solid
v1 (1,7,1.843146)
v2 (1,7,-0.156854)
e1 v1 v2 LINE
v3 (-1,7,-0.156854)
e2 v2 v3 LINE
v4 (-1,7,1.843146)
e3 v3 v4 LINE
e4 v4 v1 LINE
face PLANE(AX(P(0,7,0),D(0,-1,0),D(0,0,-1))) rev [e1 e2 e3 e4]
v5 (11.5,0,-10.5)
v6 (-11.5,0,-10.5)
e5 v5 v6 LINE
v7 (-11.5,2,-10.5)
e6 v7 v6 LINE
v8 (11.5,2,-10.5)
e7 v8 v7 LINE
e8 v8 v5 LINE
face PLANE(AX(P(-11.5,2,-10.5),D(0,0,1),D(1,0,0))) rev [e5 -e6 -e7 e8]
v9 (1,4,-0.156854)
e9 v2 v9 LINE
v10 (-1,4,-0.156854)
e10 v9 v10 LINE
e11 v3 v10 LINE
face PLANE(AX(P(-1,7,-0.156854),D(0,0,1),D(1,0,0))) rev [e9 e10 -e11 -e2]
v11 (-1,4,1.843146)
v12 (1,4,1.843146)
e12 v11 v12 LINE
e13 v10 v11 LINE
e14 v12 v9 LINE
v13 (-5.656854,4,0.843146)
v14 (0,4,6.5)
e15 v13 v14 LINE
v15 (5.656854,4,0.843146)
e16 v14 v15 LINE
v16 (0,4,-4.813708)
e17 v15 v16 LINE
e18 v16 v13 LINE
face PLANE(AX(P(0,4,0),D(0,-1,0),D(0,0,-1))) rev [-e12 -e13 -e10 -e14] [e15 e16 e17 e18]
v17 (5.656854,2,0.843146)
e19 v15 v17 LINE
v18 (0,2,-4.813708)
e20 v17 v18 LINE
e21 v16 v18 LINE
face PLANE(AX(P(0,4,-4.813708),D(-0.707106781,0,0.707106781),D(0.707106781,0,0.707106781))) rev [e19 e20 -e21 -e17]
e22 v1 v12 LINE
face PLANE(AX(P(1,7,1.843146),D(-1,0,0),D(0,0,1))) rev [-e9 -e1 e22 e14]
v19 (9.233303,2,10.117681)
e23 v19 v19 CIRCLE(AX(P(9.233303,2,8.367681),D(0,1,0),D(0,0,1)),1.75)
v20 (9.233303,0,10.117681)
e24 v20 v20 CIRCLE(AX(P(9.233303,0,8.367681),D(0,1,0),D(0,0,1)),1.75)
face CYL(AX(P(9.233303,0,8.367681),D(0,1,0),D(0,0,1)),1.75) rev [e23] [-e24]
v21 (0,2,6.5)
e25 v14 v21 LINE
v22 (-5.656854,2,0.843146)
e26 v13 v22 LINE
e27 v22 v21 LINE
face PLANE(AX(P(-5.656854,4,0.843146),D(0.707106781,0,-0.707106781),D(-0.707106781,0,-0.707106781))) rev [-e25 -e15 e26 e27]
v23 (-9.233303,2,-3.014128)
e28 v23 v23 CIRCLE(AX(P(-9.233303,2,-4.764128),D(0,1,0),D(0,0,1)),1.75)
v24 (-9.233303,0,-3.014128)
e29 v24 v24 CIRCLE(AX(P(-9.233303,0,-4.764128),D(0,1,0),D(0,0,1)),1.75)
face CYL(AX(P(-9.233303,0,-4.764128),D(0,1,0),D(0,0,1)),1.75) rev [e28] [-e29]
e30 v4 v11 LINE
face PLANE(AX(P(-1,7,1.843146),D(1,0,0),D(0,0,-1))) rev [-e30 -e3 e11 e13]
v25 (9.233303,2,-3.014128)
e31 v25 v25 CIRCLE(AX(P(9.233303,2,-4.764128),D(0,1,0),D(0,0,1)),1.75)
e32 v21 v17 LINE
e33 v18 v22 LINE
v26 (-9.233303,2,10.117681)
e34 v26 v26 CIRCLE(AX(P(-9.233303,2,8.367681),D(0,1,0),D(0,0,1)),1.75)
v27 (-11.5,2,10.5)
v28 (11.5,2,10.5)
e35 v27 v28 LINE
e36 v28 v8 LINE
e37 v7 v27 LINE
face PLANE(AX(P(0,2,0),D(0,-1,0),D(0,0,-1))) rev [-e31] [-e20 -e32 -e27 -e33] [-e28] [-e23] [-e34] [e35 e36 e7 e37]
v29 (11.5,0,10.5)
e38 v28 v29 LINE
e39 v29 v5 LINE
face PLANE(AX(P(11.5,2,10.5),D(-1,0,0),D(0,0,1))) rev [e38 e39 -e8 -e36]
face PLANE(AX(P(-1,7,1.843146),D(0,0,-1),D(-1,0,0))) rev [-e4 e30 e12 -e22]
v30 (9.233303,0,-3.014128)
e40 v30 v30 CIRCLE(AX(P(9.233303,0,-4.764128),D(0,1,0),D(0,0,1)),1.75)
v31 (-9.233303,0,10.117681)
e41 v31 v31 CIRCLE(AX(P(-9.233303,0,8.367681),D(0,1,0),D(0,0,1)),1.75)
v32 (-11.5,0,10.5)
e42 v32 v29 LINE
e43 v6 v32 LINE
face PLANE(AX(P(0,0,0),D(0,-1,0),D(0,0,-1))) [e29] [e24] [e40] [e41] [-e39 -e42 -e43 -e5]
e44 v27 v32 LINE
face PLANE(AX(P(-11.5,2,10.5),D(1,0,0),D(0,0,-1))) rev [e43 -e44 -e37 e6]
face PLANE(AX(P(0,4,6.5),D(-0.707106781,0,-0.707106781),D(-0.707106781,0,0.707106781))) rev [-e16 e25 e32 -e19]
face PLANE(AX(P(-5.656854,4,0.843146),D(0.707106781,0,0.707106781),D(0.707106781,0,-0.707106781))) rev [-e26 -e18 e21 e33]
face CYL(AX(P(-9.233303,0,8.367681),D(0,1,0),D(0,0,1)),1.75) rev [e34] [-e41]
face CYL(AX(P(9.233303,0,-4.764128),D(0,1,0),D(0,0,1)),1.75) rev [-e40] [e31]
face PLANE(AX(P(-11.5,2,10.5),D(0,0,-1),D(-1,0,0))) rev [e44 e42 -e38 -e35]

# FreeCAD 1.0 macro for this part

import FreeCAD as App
import Part
import Sketcher

V = App.Vector
Q = App.Units.Quantity


def add_polygon(sketch, points):
    """Adds a closed chain of lines whose ends are joined by coincident constraints."""
    first, n = sketch.GeometryCount, len(points)
    for a, b in zip(points, points[1:] + points[:1]):
        sketch.addGeometry(Part.LineSegment(App.Vector(*a, 0), App.Vector(*b, 0)), False)
    for i in range(n):
        sketch.addConstraint(Sketcher.Constraint("Coincident", first + i, 2, first + (i + 1) % n, 1))

doc = App.newDocument("Part")
params = doc.addObject("Spreadsheet::Sheet", "Params")
for row, (alias, value) in enumerate([
    ("sketch1_width", "23 mm"),
    ("sketch1_height", "21 mm"),
    ("pad1_length", "2 mm"),
    ("sketch2_diameter", "3.5 mm"),
    ("sketch3_length", "8 mm"),
    ("pad2_length", "2 mm"),
    ("sketch4_width", "2 mm"),
    ("pad3_length", "3 mm"),
], start=1):
    params.set(f"A{row}", alias)
    params.set(f"B{row}", "=" + value)
    params.setAlias(f"B{row}", alias)

body = doc.addObject("PartDesign::Body", "Body")

sketch1 = body.newObject("Sketcher::SketchObject", "Sketch")
sketch1.AttachmentSupport = (doc.getObject("XZ_Plane"), [""])
sketch1.MapMode = "FlatFace"
add_polygon(sketch1, [(-11.5, -10.5), (-11.5, 10.5), (11.5, 10.5), (11.5, -10.5)])
sketch1.addConstraint([
    Sketcher.Constraint("Vertical", 0),
    Sketcher.Constraint("Horizontal", 1),
    Sketcher.Constraint("Vertical", 2),
    Sketcher.Constraint("Horizontal", 3),
    Sketcher.Constraint("Symmetric", 0, 2, 2, 2, -1, 1),
    Sketcher.Constraint("DistanceX", 1, 1, 1, 2, Q("23 mm")),
    Sketcher.Constraint("DistanceY", 0, 1, 0, 2, Q("21 mm")),
])
sketch1.setExpression("Constraints[9]", "Params.sketch1_width")
sketch1.setExpression("Constraints[10]", "Params.sketch1_height")
pad1 = body.newObject("PartDesign::Pad", "Pad")
pad1.Profile = sketch1
pad1.setExpression("Length", "Params.pad1_length")
pad1.Reversed = True

sketch2 = body.newObject("Sketcher::SketchObject", "Sketch001")
sketch2.AttachmentSupport = (doc.getObject("XZ_Plane"), [""])
sketch2.MapMode = "FlatFace"
sketch2.AttachmentOffset = App.Placement(V(0, 0, -2), App.Rotation())
sketch2.addGeometry([
    Part.Circle(V(-9.233303, 8.367681, 0), V(0, 0, 1), 1.75),
    Part.Circle(V(9.233303, 8.367681, 0), V(0, 0, 1), 1.75),
    Part.Circle(V(9.233303, -4.764128, 0), V(0, 0, 1), 1.75),
    Part.Circle(V(-9.233303, -4.764128, 0), V(0, 0, 1), 1.75),
], False)
sketch2.addConstraint([
    Sketcher.Constraint("Equal", 0, 1),
    Sketcher.Constraint("Equal", 1, 2),
    Sketcher.Constraint("Equal", 2, 3),
    Sketcher.Constraint("Symmetric", 0, 3, 1, 3, -2),
    Sketcher.Constraint("Symmetric", 2, 3, 3, 3, -2),
    Sketcher.Constraint("Vertical", 1, 3, 2, 3),
    Sketcher.Constraint("Diameter", 0, Q("3.5 mm")),
    Sketcher.Constraint("DistanceY", -1, 1, 0, 3, Q("8.367681 mm")),
    Sketcher.Constraint("DistanceY", 2, 3, 1, 3, Q("13.131809 mm")),
    Sketcher.Constraint("DistanceX", 0, 3, -1, 1, Q("9.233303 mm")),
])
sketch2.setExpression("Constraints[6]", "Params.sketch2_diameter")
pocket1 = body.newObject("PartDesign::Pocket", "Pocket")
pocket1.Profile = sketch2
pocket1.Type = "ThroughAll"
pocket1.Reversed = True

sketch3 = body.newObject("Sketcher::SketchObject", "Sketch002")
sketch3.AttachmentSupport = (doc.getObject("XZ_Plane"), [""])
sketch3.MapMode = "FlatFace"
sketch3.AttachmentOffset = App.Placement(V(0, 0, -2), App.Rotation())
add_polygon(sketch3, [(-5.656854, 0.843146), (0, 6.5), (5.656854, 0.843146), (0, -4.813708)])
sketch3.addConstraint([
    Sketcher.Constraint("Symmetric", 1, 2, 3, 2, -2),
    Sketcher.Constraint("PointOnObject", 0, 2, -2),
    Sketcher.Constraint("PointOnObject", 2, 2, -2),
    Sketcher.Constraint("Perpendicular", 0, 1),
    Sketcher.Constraint("Perpendicular", 1, 2),
    Sketcher.Constraint("Distance", 0, Q("8 mm")),
    Sketcher.Constraint("DistanceY", -1, 1, 0, 2, Q("6.5 mm")),
])
sketch3.setExpression("Constraints[9]", "Params.sketch3_length")
pad2 = body.newObject("PartDesign::Pad", "Pad001")
pad2.Profile = sketch3
pad2.setExpression("Length", "Params.pad2_length")
pad2.Reversed = True

sketch4 = body.newObject("Sketcher::SketchObject", "Sketch003")
sketch4.AttachmentSupport = (doc.getObject("XZ_Plane"), [""])
sketch4.MapMode = "FlatFace"
sketch4.AttachmentOffset = App.Placement(V(0, 0, -4), App.Rotation())
add_polygon(sketch4, [(-1, -0.156854), (-1, 1.843146), (1, 1.843146), (1, -0.156854)])
sketch4.addConstraint([
    Sketcher.Constraint("Vertical", 0),
    Sketcher.Constraint("Horizontal", 1),
    Sketcher.Constraint("Vertical", 2),
    Sketcher.Constraint("Horizontal", 3),
    Sketcher.Constraint("Equal", 3, 0),
    Sketcher.Constraint("DistanceX", 1, 1, 1, 2, Q("2 mm")),
    Sketcher.Constraint("DistanceX", 0, 2, -1, 1, Q("1 mm")),
    Sketcher.Constraint("DistanceY", -1, 1, 0, 2, Q("1.843146 mm")),
])
sketch4.setExpression("Constraints[9]", "Params.sketch4_width")
pad3 = body.newObject("PartDesign::Pad", "Pad002")
pad3.Profile = sketch4
pad3.setExpression("Length", "Params.pad3_length")
pad3.Reversed = True

doc.recompute()
